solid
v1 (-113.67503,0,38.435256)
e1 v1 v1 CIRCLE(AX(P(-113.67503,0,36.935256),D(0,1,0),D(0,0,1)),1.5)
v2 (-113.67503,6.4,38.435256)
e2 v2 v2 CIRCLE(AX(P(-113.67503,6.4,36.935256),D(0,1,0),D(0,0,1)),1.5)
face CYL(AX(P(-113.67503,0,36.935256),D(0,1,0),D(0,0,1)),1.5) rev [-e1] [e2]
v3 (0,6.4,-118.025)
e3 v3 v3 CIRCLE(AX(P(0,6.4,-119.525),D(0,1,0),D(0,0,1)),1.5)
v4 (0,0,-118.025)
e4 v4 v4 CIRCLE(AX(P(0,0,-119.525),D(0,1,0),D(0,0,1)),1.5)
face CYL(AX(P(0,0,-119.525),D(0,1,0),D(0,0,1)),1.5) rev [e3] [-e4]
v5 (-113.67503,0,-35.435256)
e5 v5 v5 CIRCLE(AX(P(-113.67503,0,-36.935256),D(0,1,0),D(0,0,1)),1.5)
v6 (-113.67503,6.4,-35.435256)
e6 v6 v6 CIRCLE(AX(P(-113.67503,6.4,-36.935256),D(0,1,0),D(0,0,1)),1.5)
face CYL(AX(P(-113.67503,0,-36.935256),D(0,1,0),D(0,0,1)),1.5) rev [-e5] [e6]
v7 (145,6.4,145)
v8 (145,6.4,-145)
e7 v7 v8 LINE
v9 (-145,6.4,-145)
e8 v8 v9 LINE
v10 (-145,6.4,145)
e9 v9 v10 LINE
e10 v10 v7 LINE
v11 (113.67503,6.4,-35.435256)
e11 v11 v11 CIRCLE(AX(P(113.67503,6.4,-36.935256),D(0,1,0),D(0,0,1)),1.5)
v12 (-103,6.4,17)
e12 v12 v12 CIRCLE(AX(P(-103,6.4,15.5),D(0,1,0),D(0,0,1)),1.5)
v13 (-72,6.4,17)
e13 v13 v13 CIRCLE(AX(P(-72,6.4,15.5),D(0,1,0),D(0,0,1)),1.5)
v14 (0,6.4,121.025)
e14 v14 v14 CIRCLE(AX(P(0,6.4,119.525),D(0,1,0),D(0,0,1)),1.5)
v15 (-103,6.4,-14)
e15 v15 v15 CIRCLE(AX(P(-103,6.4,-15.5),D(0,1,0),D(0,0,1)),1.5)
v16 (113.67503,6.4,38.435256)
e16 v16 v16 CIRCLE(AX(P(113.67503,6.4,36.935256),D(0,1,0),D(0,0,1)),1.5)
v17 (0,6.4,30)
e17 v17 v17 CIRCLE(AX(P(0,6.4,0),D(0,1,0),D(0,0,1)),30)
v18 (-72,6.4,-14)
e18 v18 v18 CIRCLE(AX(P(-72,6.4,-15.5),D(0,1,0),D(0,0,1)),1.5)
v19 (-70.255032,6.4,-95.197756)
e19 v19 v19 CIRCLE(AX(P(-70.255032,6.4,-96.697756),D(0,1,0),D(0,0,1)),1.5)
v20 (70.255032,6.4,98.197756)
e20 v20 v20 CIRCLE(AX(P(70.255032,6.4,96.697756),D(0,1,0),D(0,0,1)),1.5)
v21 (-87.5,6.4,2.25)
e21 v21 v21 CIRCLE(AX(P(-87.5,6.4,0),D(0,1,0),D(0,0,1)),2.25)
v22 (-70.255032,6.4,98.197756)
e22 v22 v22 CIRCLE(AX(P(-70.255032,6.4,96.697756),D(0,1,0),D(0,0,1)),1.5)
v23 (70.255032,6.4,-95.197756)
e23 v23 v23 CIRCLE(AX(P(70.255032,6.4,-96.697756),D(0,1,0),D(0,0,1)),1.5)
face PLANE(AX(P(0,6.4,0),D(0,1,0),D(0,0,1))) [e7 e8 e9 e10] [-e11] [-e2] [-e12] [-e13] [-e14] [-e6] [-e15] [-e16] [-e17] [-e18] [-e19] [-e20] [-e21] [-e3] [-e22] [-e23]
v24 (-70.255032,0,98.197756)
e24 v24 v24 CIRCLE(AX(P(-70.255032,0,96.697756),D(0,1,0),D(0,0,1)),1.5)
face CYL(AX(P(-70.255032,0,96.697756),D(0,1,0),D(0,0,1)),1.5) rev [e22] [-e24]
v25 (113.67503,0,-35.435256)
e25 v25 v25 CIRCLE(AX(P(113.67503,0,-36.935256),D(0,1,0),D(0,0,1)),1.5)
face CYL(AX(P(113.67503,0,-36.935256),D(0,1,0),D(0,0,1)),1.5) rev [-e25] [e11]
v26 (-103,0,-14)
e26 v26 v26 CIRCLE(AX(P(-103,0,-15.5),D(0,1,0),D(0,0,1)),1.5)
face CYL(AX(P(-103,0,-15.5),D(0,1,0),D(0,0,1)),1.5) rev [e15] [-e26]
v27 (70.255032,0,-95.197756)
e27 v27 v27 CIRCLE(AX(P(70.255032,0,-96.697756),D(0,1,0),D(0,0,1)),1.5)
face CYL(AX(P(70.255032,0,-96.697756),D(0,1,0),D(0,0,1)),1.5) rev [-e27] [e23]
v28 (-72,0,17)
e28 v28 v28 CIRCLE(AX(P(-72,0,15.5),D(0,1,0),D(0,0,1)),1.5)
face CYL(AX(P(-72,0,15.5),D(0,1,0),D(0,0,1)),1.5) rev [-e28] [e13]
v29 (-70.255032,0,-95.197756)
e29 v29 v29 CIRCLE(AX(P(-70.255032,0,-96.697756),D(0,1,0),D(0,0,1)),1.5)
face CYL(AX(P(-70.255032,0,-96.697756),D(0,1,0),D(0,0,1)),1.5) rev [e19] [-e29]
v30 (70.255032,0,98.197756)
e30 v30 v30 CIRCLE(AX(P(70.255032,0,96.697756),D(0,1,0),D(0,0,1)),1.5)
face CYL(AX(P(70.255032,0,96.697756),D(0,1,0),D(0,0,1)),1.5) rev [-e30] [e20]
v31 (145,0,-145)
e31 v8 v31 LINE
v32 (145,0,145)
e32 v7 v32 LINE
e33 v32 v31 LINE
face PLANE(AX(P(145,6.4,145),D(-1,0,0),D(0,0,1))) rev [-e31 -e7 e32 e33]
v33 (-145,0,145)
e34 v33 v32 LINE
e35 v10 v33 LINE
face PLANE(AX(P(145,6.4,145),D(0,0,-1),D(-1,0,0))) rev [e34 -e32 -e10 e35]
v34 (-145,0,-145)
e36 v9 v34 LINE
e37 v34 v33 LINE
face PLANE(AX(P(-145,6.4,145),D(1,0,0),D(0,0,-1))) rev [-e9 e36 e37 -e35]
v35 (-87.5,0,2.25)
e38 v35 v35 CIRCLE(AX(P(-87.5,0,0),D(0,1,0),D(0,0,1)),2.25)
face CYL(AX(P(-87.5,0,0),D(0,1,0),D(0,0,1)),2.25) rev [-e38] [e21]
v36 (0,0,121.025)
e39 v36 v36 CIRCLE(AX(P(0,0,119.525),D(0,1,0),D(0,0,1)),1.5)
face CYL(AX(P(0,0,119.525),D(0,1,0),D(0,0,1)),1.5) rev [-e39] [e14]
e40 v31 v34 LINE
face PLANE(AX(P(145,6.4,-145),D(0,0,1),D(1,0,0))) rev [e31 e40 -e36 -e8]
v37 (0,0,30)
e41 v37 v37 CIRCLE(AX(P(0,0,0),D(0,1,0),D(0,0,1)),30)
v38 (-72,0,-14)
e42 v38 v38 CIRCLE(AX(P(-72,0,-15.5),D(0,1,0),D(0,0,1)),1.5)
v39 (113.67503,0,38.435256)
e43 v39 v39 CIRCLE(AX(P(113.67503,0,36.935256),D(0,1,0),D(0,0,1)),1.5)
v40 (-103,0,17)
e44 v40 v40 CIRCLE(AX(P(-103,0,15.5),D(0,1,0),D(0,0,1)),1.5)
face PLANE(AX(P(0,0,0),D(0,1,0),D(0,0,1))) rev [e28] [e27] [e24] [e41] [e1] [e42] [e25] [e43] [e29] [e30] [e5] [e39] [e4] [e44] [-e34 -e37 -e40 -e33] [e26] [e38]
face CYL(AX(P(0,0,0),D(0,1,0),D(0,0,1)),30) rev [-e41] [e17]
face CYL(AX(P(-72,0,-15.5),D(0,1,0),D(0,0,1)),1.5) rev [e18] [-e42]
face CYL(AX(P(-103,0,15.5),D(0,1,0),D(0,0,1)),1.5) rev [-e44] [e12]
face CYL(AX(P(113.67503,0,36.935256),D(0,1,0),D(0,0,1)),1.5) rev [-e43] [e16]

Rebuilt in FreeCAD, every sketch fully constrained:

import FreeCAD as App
import Part
import Sketcher

V = App.Vector
Q = App.Units.Quantity

doc = App.newDocument("Part")
body = doc.addObject("PartDesign::Body", "Body")

sketch1 = doc.addObject("Sketcher::SketchObject", "Sketch")
body.addObject(sketch1)
sketch1.AttachmentSupport = (doc.XZ_Plane, [""])
sketch1.MapMode = "FlatFace"
sketch1.addGeometry(Part.LineSegment(V(-145, -145, 0), V(-145, 145, 0)), False)
sketch1.addGeometry(Part.LineSegment(V(-145, 145, 0), V(145, 145, 0)), False)
sketch1.addGeometry(Part.LineSegment(V(145, 145, 0), V(145, -145, 0)), False)
sketch1.addGeometry(Part.LineSegment(V(145, -145, 0), V(-145, -145, 0)), False)
sketch1.addConstraint(Sketcher.Constraint("Coincident", 0, 2, 1, 1))
sketch1.addConstraint(Sketcher.Constraint("Coincident", 1, 2, 2, 1))
sketch1.addConstraint(Sketcher.Constraint("Coincident", 2, 2, 3, 1))
sketch1.addConstraint(Sketcher.Constraint("Coincident", 3, 2, 0, 1))
sketch1.addConstraint(Sketcher.Constraint("Vertical", 0))
sketch1.addConstraint(Sketcher.Constraint("Horizontal", 1))
sketch1.addConstraint(Sketcher.Constraint("Vertical", 2))
sketch1.addConstraint(Sketcher.Constraint("Horizontal", 3))
sketch1.addConstraint(Sketcher.Constraint("Symmetric", 0, 2, 2, 2, -1, 1))
sketch1.addConstraint(Sketcher.Constraint("Equal", 3, 0))
sketch1.addConstraint(Sketcher.Constraint("DistanceX", 1, 1, 1, 2, Q("290 mm")))
pad1 = doc.addObject("PartDesign::Pad", "Pad")
body.addObject(pad1)
pad1.Profile = sketch1
pad1.Length = 6.4
pad1.Reversed = True

sketch2 = doc.addObject("Sketcher::SketchObject", "Sketch001")
body.addObject(sketch2)
sketch2.AttachmentSupport = (doc.XZ_Plane, [""])
sketch2.MapMode = "FlatFace"
sketch2.AttachmentOffset = App.Placement(V(0, 0, -6.4), App.Rotation())
sketch2.addGeometry(Part.Circle(V(0, 0, 0), V(0, 0, 1), 30), False)
sketch2.addGeometry(Part.Circle(V(0, -119.5, 0), V(0, 0, 1), 1.5), False)
sketch2.addGeometry(Part.Circle(V(70.3, -96.7, 0), V(0, 0, 1), 1.5), False)
sketch2.addGeometry(Part.Circle(V(113.7, -36.9, 0), V(0, 0, 1), 1.5), False)
sketch2.addGeometry(Part.Circle(V(113.7, 36.9, 0), V(0, 0, 1), 1.5), False)
sketch2.addGeometry(Part.Circle(V(70.3, 96.7, 0), V(0, 0, 1), 1.5), False)
sketch2.addGeometry(Part.Circle(V(0, 119.5, 0), V(0, 0, 1), 1.5), False)
sketch2.addGeometry(Part.Circle(V(-70.3, 96.7, 0), V(0, 0, 1), 1.5), False)
sketch2.addGeometry(Part.Circle(V(-113.7, 36.9, 0), V(0, 0, 1), 1.5), False)
sketch2.addGeometry(Part.Circle(V(-113.7, -36.9, 0), V(0, 0, 1), 1.5), False)
sketch2.addGeometry(Part.Circle(V(-70.3, -96.7, 0), V(0, 0, 1), 1.5), False)
sketch2.addGeometry(Part.Circle(V(-87.5, 0, 0), V(0, 0, 1), 2.2), False)
sketch2.addGeometry(Part.Circle(V(-103, -15.5, 0), V(0, 0, 1), 1.5), False)
sketch2.addGeometry(Part.Circle(V(-72, -15.5, 0), V(0, 0, 1), 1.5), False)
sketch2.addGeometry(Part.Circle(V(-72, 15.5, 0), V(0, 0, 1), 1.5), False)
sketch2.addGeometry(Part.Circle(V(-103, 15.5, 0), V(0, 0, 1), 1.5), False)
sketch2.addConstraint(Sketcher.Constraint("Coincident", 0, 3, -1, 1))
sketch2.addConstraint(Sketcher.Constraint("Equal", 1, 2))
sketch2.addConstraint(Sketcher.Constraint("Equal", 2, 3))
sketch2.addConstraint(Sketcher.Constraint("Equal", 3, 4))
sketch2.addConstraint(Sketcher.Constraint("Equal", 4, 5))
sketch2.addConstraint(Sketcher.Constraint("Equal", 5, 6))
sketch2.addConstraint(Sketcher.Constraint("Equal", 6, 7))
sketch2.addConstraint(Sketcher.Constraint("Equal", 7, 8))
sketch2.addConstraint(Sketcher.Constraint("Equal", 8, 9))
sketch2.addConstraint(Sketcher.Constraint("Equal", 9, 10))
sketch2.addConstraint(Sketcher.Constraint("Equal", 10, 12))
sketch2.addConstraint(Sketcher.Constraint("Equal", 12, 13))
sketch2.addConstraint(Sketcher.Constraint("Equal", 13, 14))
sketch2.addConstraint(Sketcher.Constraint("Equal", 14, 15))
sketch2.addConstraint(Sketcher.Constraint("Symmetric", 1, 3, 6, 3, -1, 1))
sketch2.addConstraint(Sketcher.Constraint("Symmetric", 2, 3, 7, 3, -1, 1))
sketch2.addConstraint(Sketcher.Constraint("Symmetric", 3, 3, 8, 3, -1, 1))
sketch2.addConstraint(Sketcher.Constraint("Symmetric", 4, 3, 9, 3, -1, 1))
sketch2.addConstraint(Sketcher.Constraint("Symmetric", 5, 3, 10, 3, -1, 1))
sketch2.addConstraint(Sketcher.Constraint("Symmetric", 5, 3, 7, 3, -2))
sketch2.addConstraint(Sketcher.Constraint("Symmetric", 4, 3, 8, 3, -2))
sketch2.addConstraint(Sketcher.Constraint("Symmetric", 13, 3, 14, 3, -1))
sketch2.addConstraint(Sketcher.Constraint("Symmetric", 12, 3, 15, 3, -1))
sketch2.addConstraint(Sketcher.Constraint("PointOnObject", 1, 3, -2))
sketch2.addConstraint(Sketcher.Constraint("PointOnObject", 11, 3, -1))
sketch2.addConstraint(Sketcher.Constraint("Horizontal", 12, 3, 13, 3))
sketch2.addConstraint(Sketcher.Constraint("Diameter", 0, Q("60 mm")))
sketch2.addConstraint(Sketcher.Constraint("Diameter", 1, Q("3 mm")))
sketch2.addConstraint(Sketcher.Constraint("Diameter", 11, Q("4.5 mm")))
sketch2.addConstraint(Sketcher.Constraint("DistanceX", 12, 3, -1, 1, Q("103 mm")))
sketch2.addConstraint(Sketcher.Constraint("DistanceX", 13, 3, -1, 1, Q("72 mm")))
sketch2.addConstraint(Sketcher.Constraint("DistanceY", 13, 3, 14, 3, Q("31 mm")))
sketch2.addConstraint(Sketcher.Constraint("DistanceX", 11, 3, -1, 1, Q("87.5 mm")))
sketch2.addConstraint(Sketcher.Constraint("DistanceY", 1, 3, -1, 1, Q("119.525 mm")))
sketch2.addConstraint(Sketcher.Constraint("DistanceY", 2, 3, 3, 3, Q("59.7625 mm")))
sketch2.addConstraint(Sketcher.Constraint("DistanceX", -1, 1, 3, 3, Q("113.67503 mm")))
sketch2.addConstraint(Sketcher.Constraint("DistanceX", -1, 1, 2, 3, Q("70.255032 mm")))
sketch2.addConstraint(Sketcher.Constraint("DistanceY", 2, 3, -1, 1, Q("96.697756 mm")))
pocket1 = doc.addObject("PartDesign::Pocket", "Pocket")
body.addObject(pocket1)
pocket1.Profile = sketch2
pocket1.Length = 6.4
pocket1.Reversed = True

doc.recompute()
